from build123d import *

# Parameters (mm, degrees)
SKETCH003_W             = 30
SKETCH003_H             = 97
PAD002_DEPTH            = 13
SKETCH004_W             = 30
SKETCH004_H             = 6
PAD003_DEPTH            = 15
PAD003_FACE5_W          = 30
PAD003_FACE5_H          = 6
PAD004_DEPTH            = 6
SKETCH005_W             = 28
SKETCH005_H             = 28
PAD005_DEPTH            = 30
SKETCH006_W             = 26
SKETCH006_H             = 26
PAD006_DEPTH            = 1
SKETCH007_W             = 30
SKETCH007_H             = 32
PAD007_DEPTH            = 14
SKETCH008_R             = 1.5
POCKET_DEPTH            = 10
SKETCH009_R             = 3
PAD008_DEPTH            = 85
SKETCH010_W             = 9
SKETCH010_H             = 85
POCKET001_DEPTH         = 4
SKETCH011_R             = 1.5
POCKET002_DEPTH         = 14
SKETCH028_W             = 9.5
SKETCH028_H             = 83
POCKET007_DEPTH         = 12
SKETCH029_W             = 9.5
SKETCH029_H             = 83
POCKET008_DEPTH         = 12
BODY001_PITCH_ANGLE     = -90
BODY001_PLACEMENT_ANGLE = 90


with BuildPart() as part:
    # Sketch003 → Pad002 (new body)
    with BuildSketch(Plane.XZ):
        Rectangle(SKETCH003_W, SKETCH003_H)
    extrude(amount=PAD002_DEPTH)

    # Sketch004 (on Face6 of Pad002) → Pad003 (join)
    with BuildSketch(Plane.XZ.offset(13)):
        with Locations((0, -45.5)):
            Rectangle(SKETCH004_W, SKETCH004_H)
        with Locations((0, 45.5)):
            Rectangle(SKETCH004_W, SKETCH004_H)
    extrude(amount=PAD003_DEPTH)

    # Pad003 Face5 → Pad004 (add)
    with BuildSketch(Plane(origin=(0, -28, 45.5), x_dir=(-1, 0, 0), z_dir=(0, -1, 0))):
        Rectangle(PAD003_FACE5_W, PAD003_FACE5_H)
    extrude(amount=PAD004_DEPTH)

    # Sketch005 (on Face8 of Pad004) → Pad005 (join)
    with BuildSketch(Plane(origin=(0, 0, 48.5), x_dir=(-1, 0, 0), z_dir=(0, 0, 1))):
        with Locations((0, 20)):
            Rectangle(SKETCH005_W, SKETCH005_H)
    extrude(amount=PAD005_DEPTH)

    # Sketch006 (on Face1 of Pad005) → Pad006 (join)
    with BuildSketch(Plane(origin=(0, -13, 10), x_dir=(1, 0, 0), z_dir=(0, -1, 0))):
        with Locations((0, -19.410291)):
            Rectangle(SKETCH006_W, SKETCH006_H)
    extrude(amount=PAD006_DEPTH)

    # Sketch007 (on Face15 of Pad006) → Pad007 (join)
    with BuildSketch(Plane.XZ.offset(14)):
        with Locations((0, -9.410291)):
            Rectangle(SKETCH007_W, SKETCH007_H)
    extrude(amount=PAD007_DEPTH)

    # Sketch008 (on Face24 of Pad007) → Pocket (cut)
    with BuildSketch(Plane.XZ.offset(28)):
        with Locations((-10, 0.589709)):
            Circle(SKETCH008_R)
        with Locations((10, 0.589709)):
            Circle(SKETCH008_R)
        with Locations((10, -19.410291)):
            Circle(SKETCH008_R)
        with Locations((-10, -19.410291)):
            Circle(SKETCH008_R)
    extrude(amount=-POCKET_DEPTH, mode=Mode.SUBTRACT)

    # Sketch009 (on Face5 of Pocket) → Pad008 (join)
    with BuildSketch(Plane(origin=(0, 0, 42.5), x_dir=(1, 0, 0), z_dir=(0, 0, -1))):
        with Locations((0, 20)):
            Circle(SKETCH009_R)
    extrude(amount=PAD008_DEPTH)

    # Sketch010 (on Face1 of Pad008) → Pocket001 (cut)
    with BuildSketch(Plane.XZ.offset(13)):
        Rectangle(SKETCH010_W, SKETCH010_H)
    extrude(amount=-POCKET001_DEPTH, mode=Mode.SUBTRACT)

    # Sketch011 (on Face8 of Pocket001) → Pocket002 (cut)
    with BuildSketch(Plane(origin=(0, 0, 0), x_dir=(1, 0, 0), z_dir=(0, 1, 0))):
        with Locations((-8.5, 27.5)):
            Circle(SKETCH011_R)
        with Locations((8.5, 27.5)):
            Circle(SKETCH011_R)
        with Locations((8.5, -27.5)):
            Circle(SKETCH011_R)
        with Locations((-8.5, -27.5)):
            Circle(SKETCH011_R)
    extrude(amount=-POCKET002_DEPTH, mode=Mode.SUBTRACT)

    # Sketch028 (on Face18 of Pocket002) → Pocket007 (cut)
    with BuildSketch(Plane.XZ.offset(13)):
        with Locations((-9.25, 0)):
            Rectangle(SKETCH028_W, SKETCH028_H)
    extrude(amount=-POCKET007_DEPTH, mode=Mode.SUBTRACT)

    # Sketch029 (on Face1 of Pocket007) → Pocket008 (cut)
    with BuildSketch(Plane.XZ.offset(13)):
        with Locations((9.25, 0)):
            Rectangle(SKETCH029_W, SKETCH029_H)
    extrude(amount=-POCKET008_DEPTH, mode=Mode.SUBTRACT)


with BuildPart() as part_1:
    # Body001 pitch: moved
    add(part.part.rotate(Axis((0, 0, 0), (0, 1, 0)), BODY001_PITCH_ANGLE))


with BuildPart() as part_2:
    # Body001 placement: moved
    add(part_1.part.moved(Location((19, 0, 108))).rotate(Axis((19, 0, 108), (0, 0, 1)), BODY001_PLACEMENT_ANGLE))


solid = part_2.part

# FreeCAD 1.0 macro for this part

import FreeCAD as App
import Part
import Sketcher
Q = App.Units.Quantity

doc = App.newDocument("Part")
params = doc.addObject("Spreadsheet::Sheet", "Params")
for row, (alias, value) in enumerate([
    ("sketch1_width", "30 mm"),
    ("sketch1_height", "97 mm"),
    ("pad1_length", "13 mm"),
    ("sketch2_width", "30 mm"),
    ("sketch2_height", "6 mm"),
    ("pad2_length", "15 mm"),
    ("sketch3_width", "30 mm"),
    ("sketch3_height", "6 mm"),
    ("pad3_length", "6 mm"),
    ("sketch4_width", "28 mm"),
    ("pad4_length", "30 mm"),
    ("sketch5_width", "26 mm"),
    ("pad5_length", "1 mm"),
    ("sketch6_width", "30 mm"),
    ("sketch6_height", "32 mm"),
    ("pad6_length", "14 mm"),
    ("sketch7_diameter", "3 mm"),
    ("pocket1_length", "10 mm"),
    ("sketch8_diameter", "6 mm"),
    ("pad7_length", "85 mm"),
    ("sketch9_width", "9 mm"),
    ("sketch9_height", "85 mm"),
    ("pocket2_length", "4 mm"),
    ("sketch10_diameter", "3 mm"),
    ("pocket3_length", "14 mm"),
    ("sketch11_height", "83 mm"),
    ("sketch11_width", "9.5 mm"),
    ("pocket4_length", "12 mm"),
    ("sketch12_height", "83 mm"),
    ("sketch12_width", "9.5 mm"),
    ("pocket5_length", "12 mm"),
], start=1):
    params.set(f"A{row}", alias)
    params.set(f"B{row}", "=" + value)
    params.setAlias(f"B{row}", alias)

body = doc.addObject("PartDesign::Body", "Body")

# Sketch on XZ plane
sketch1 = body.newObject("Sketcher::SketchObject", "Sketch")
sketch1.AttachmentSupport = (doc.getObject("XZ_Plane"), [""])
sketch1.MapMode = "FlatFace"
sketch1.addGeometry([
    Part.LineSegment(App.Vector(-15, 48, 0), App.Vector(-15, -48, 0)),
    Part.LineSegment(App.Vector(-15, -48, 0), App.Vector(15, -48, 0)),
    Part.LineSegment(App.Vector(15, -48, 0), App.Vector(15, 48, 0)),
    Part.LineSegment(App.Vector(15, 48, 0), App.Vector(-15, 48, 0)),
], False)
sketch1.addConstraint([
    Sketcher.Constraint("Coincident", 0, 2, 1, 1),
    Sketcher.Constraint("Coincident", 1, 2, 2, 1),
    Sketcher.Constraint("Coincident", 2, 2, 3, 1),
    Sketcher.Constraint("Coincident", 3, 2, 0, 1),
    Sketcher.Constraint("Vertical", 0),
    Sketcher.Constraint("Horizontal", 1),
    Sketcher.Constraint("Vertical", 2),
    Sketcher.Constraint("Horizontal", 3),
    Sketcher.Constraint("Symmetric", 0, 2, 2, 2, -1, 1),
    Sketcher.Constraint("DistanceX", 1, 1, 1, 2, Q("30 mm")),
    Sketcher.Constraint("DistanceY", 0, 2, 0, 1, Q("97 mm")),
])
sketch1.setExpression("Constraints[9]", "Params.sketch1_width")
sketch1.setExpression("Constraints[10]", "Params.sketch1_height")
pad1 = body.newObject("PartDesign::Pad", "Pad")
pad1.Profile = sketch1
pad1.setExpression("Length", "Params.pad1_length")

# Sketch on XZ plane
sketch2 = body.newObject("Sketcher::SketchObject", "Sketch001")
sketch2.AttachmentSupport = (doc.getObject("XZ_Plane"), [""])
sketch2.MapMode = "FlatFace"
sketch2.AttachmentOffset = App.Placement(App.Vector(0, 0, 13), App.Rotation())
sketch2.addGeometry([
    Part.LineSegment(App.Vector(-15, -42, 0), App.Vector(-15, -48, 0)),  # 0
    Part.LineSegment(App.Vector(-15, -48, 0), App.Vector(15, -48, 0)),  # 1
    Part.LineSegment(App.Vector(15, -48, 0), App.Vector(15, -42, 0)),  # 2
    Part.LineSegment(App.Vector(15, -42, 0), App.Vector(-15, -42, 0)),  # 3
    Part.LineSegment(App.Vector(-15, 48, 0), App.Vector(-15, 42, 0)),  # 4
    Part.LineSegment(App.Vector(-15, 42, 0), App.Vector(15, 42, 0)),  # 5
    Part.LineSegment(App.Vector(15, 42, 0), App.Vector(15, 48, 0)),  # 6
    Part.LineSegment(App.Vector(15, 48, 0), App.Vector(-15, 48, 0)),  # 7
], False)
sketch2.addConstraint([
    Sketcher.Constraint("Coincident", 0, 2, 1, 1),
    Sketcher.Constraint("Coincident", 1, 2, 2, 1),
    Sketcher.Constraint("Coincident", 2, 2, 3, 1),
    Sketcher.Constraint("Coincident", 3, 2, 0, 1),
    Sketcher.Constraint("Coincident", 4, 2, 5, 1),
    Sketcher.Constraint("Coincident", 5, 2, 6, 1),
    Sketcher.Constraint("Coincident", 6, 2, 7, 1),
    Sketcher.Constraint("Coincident", 7, 2, 4, 1),
    Sketcher.Constraint("Vertical", 0),
    Sketcher.Constraint("Horizontal", 1),
    Sketcher.Constraint("Vertical", 2),
    Sketcher.Constraint("Horizontal", 3),
    Sketcher.Constraint("Vertical", 4),
    Sketcher.Constraint("Horizontal", 5),
    Sketcher.Constraint("Vertical", 6),
    Sketcher.Constraint("Horizontal", 7),
    Sketcher.Constraint("Symmetric", 2, 2, 4, 2, -1, 1),
    Sketcher.Constraint("Symmetric", 0, 2, 6, 2, -1, 1),
    Sketcher.Constraint("Vertical", 3, 2, 4, 2),
    Sketcher.Constraint("DistanceX", 1, 1, 1, 2, Q("30 mm")),
    Sketcher.Constraint("DistanceY", 0, 2, 0, 1, Q("6 mm")),
    Sketcher.Constraint("DistanceY", 3, 2, 4, 2, Q("85 mm")),
])
sketch2.setExpression("Constraints[19]", "Params.sketch2_width")
sketch2.setExpression("Constraints[20]", "Params.sketch2_height")
pad2 = body.newObject("PartDesign::Pad", "Pad001")
pad2.Profile = sketch2
pad2.setExpression("Length", "Params.pad2_length")

# Sketch on XZ plane
sketch3 = body.newObject("Sketcher::SketchObject", "Sketch002")
sketch3.AttachmentSupport = (doc.getObject("XZ_Plane"), [""])
sketch3.MapMode = "FlatFace"
sketch3.AttachmentOffset = App.Placement(App.Vector(0, 0, 28), App.Rotation())
sketch3.addGeometry([
    Part.LineSegment(App.Vector(15, 42, 0), App.Vector(15, 48, 0)),
    Part.LineSegment(App.Vector(15, 48, 0), App.Vector(-15, 48, 0)),
    Part.LineSegment(App.Vector(-15, 48, 0), App.Vector(-15, 42, 0)),
    Part.LineSegment(App.Vector(-15, 42, 0), App.Vector(15, 42, 0)),
], False)
sketch3.addConstraint([
    Sketcher.Constraint("Coincident", 0, 2, 1, 1),
    Sketcher.Constraint("Coincident", 1, 2, 2, 1),
    Sketcher.Constraint("Coincident", 2, 2, 3, 1),
    Sketcher.Constraint("Coincident", 3, 2, 0, 1),
    Sketcher.Constraint("Vertical", 0),
    Sketcher.Constraint("Horizontal", 1),
    Sketcher.Constraint("Vertical", 2),
    Sketcher.Constraint("Horizontal", 3),
    Sketcher.Constraint("DistanceX", 1, 2, 1, 1, Q("30 mm")),
    Sketcher.Constraint("DistanceY", 0, 1, 0, 2, Q("6 mm")),
    Sketcher.Constraint("DistanceX", -1, 1, 0, 2, Q("15 mm")),
    Sketcher.Constraint("DistanceY", -1, 1, 0, 2, Q("48.5 mm")),
])
sketch3.setExpression("Constraints[8]", "Params.sketch3_width")
sketch3.setExpression("Constraints[9]", "Params.sketch3_height")
pad3 = body.newObject("PartDesign::Pad", "Pad002")
pad3.Profile = sketch3
pad3.setExpression("Length", "Params.pad3_length")

# Sketch on XY plane
sketch4 = body.newObject("Sketcher::SketchObject", "Sketch003")
sketch4.AttachmentSupport = (doc.getObject("XY_Plane"), [""])
sketch4.MapMode = "FlatFace"
sketch4.AttachmentOffset = App.Placement(App.Vector(0, 0, 48.5), App.Rotation())
sketch4.addGeometry([
    Part.LineSegment(App.Vector(14, -34, 0), App.Vector(14, -6, 0)),
    Part.LineSegment(App.Vector(14, -6, 0), App.Vector(-14, -6, 0)),
    Part.LineSegment(App.Vector(-14, -6, 0), App.Vector(-14, -34, 0)),
    Part.LineSegment(App.Vector(-14, -34, 0), App.Vector(14, -34, 0)),
], False)
sketch4.addConstraint([
    Sketcher.Constraint("Coincident", 0, 2, 1, 1),
    Sketcher.Constraint("Coincident", 1, 2, 2, 1),
    Sketcher.Constraint("Coincident", 2, 2, 3, 1),
    Sketcher.Constraint("Coincident", 3, 2, 0, 1),
    Sketcher.Constraint("Vertical", 0),
    Sketcher.Constraint("Horizontal", 1),
    Sketcher.Constraint("Vertical", 2),
    Sketcher.Constraint("Horizontal", 3),
    Sketcher.Constraint("Equal", 3, 0),
    Sketcher.Constraint("DistanceX", 1, 2, 1, 1, Q("28 mm")),
    Sketcher.Constraint("DistanceX", -1, 1, 0, 2, Q("14 mm")),
    Sketcher.Constraint("DistanceY", 0, 2, -1, 1, Q("6 mm")),
])
sketch4.setExpression("Constraints[9]", "Params.sketch4_width")
pad4 = body.newObject("PartDesign::Pad", "Pad003")
pad4.Profile = sketch4
pad4.setExpression("Length", "Params.pad4_length")

# Sketch on XZ plane
sketch5 = body.newObject("Sketcher::SketchObject", "Sketch004")
sketch5.AttachmentSupport = (doc.getObject("XZ_Plane"), [""])
sketch5.MapMode = "FlatFace"
sketch5.AttachmentOffset = App.Placement(App.Vector(0, 0, 13), App.Rotation())
sketch5.addGeometry([
    Part.LineSegment(App.Vector(-13, 4, 0), App.Vector(-13, -22, 0)),
    Part.LineSegment(App.Vector(-13, -22, 0), App.Vector(13, -22, 0)),
    Part.LineSegment(App.Vector(13, -22, 0), App.Vector(13, 4, 0)),
    Part.LineSegment(App.Vector(13, 4, 0), App.Vector(-13, 4, 0)),
], False)
sketch5.addConstraint([
    Sketcher.Constraint("Coincident", 0, 2, 1, 1),
    Sketcher.Constraint("Coincident", 1, 2, 2, 1),
    Sketcher.Constraint("Coincident", 2, 2, 3, 1),
    Sketcher.Constraint("Coincident", 3, 2, 0, 1),
    Sketcher.Constraint("Vertical", 0),
    Sketcher.Constraint("Horizontal", 1),
    Sketcher.Constraint("Vertical", 2),
    Sketcher.Constraint("Horizontal", 3),
    Sketcher.Constraint("Equal", 3, 0),
    Sketcher.Constraint("DistanceX", 1, 1, 1, 2, Q("26 mm")),
    Sketcher.Constraint("DistanceX", 0, 2, -1, 1, Q("13 mm")),
    Sketcher.Constraint("DistanceY", 0, 2, -1, 1, Q("22.410291 mm")),
])
sketch5.setExpression("Constraints[9]", "Params.sketch5_width")
pad5 = body.newObject("PartDesign::Pad", "Pad004")
pad5.Profile = sketch5
pad5.setExpression("Length", "Params.pad5_length")

# Sketch on XZ plane
sketch6 = body.newObject("Sketcher::SketchObject", "Sketch005")
sketch6.AttachmentSupport = (doc.getObject("XZ_Plane"), [""])
sketch6.MapMode = "FlatFace"
sketch6.AttachmentOffset = App.Placement(App.Vector(0, 0, 14), App.Rotation())
sketch6.addGeometry([
    Part.LineSegment(App.Vector(-15, 7, 0), App.Vector(-15, -25, 0)),
    Part.LineSegment(App.Vector(-15, -25, 0), App.Vector(15, -25, 0)),
    Part.LineSegment(App.Vector(15, -25, 0), App.Vector(15, 7, 0)),
    Part.LineSegment(App.Vector(15, 7, 0), App.Vector(-15, 7, 0)),
], False)
sketch6.addConstraint([
    Sketcher.Constraint("Coincident", 0, 2, 1, 1),
    Sketcher.Constraint("Coincident", 1, 2, 2, 1),
    Sketcher.Constraint("Coincident", 2, 2, 3, 1),
    Sketcher.Constraint("Coincident", 3, 2, 0, 1),
    Sketcher.Constraint("Vertical", 0),
    Sketcher.Constraint("Horizontal", 1),
    Sketcher.Constraint("Vertical", 2),
    Sketcher.Constraint("Horizontal", 3),
    Sketcher.Constraint("DistanceX", 1, 1, 1, 2, Q("30 mm")),
    Sketcher.Constraint("DistanceY", 0, 2, 0, 1, Q("32 mm")),
    Sketcher.Constraint("DistanceX", 0, 2, -1, 1, Q("15 mm")),
    Sketcher.Constraint("DistanceY", 0, 2, -1, 1, Q("25.410291 mm")),
])
sketch6.setExpression("Constraints[8]", "Params.sketch6_width")
sketch6.setExpression("Constraints[9]", "Params.sketch6_height")
pad6 = body.newObject("PartDesign::Pad", "Pad005")
pad6.Profile = sketch6
pad6.setExpression("Length", "Params.pad6_length")

# Sketch on XZ plane
sketch7 = body.newObject("Sketcher::SketchObject", "Sketch006")
sketch7.AttachmentSupport = (doc.getObject("XZ_Plane"), [""])
sketch7.MapMode = "FlatFace"
sketch7.AttachmentOffset = App.Placement(App.Vector(0, 0, 28), App.Rotation())
sketch7.addGeometry([
    Part.Circle(App.Vector(-10, 0.6, 0), App.Vector(0, 0, 1), 1.5),
    Part.Circle(App.Vector(10, 0.6, 0), App.Vector(0, 0, 1), 1.5),
    Part.Circle(App.Vector(10, -19.4, 0), App.Vector(0, 0, 1), 1.5),
    Part.Circle(App.Vector(-10, -19.4, 0), App.Vector(0, 0, 1), 1.5),
], False)
sketch7.addConstraint([
    Sketcher.Constraint("Equal", 0, 1),
    Sketcher.Constraint("Equal", 1, 2),
    Sketcher.Constraint("Equal", 2, 3),
    Sketcher.Constraint("Symmetric", 0, 3, 1, 3, -2),
    Sketcher.Constraint("Symmetric", 2, 3, 3, 3, -2),
    Sketcher.Constraint("Vertical", 1, 3, 2, 3),
    Sketcher.Constraint("Diameter", 0, Q("3 mm")),
    Sketcher.Constraint("DistanceX", 0, 3, -1, 1, Q("10 mm")),
    Sketcher.Constraint("DistanceY", 2, 3, 1, 3, Q("20 mm")),
    Sketcher.Constraint("DistanceY", -1, 1, 0, 3, Q("0.589709 mm")),
])
sketch7.setExpression("Constraints[6]", "Params.sketch7_diameter")
pocket1 = body.newObject("PartDesign::Pocket", "Pocket")
pocket1.Profile = sketch7
pocket1.setExpression("Length", "Params.pocket1_length")

# Sketch on XY plane
sketch8 = body.newObject("Sketcher::SketchObject", "Sketch007")
sketch8.AttachmentSupport = (doc.getObject("XY_Plane"), [""])
sketch8.MapMode = "FlatFace"
sketch8.AttachmentOffset = App.Placement(App.Vector(0, 0, 42.5), App.Rotation())
sketch8.addGeometry(Part.Circle(App.Vector(0, -20, 0), App.Vector(0, 0, 1), 3), False)
sketch8.addConstraint([
    Sketcher.Constraint("PointOnObject", 0, 3, -2),
    Sketcher.Constraint("Diameter", 0, Q("6 mm")),
    Sketcher.Constraint("DistanceY", 0, 3, -1, 1, Q("20 mm")),
])
sketch8.setExpression("Constraints[1]", "Params.sketch8_diameter")
pad7 = body.newObject("PartDesign::Pad", "Pad006")
pad7.Profile = sketch8
pad7.setExpression("Length", "Params.pad7_length")
pad7.Reversed = True

# Sketch on XZ plane
sketch9 = body.newObject("Sketcher::SketchObject", "Sketch008")
sketch9.AttachmentSupport = (doc.getObject("XZ_Plane"), [""])
sketch9.MapMode = "FlatFace"
sketch9.AttachmentOffset = App.Placement(App.Vector(0, 0, 13), App.Rotation())
sketch9.addGeometry([
    Part.LineSegment(App.Vector(-4, 42, 0), App.Vector(-4, -42, 0)),
    Part.LineSegment(App.Vector(-4, -42, 0), App.Vector(4, -42, 0)),
    Part.LineSegment(App.Vector(4, -42, 0), App.Vector(4, 42, 0)),
    Part.LineSegment(App.Vector(4, 42, 0), App.Vector(-4, 42, 0)),
], False)
sketch9.addConstraint([
    Sketcher.Constraint("Coincident", 0, 2, 1, 1),
    Sketcher.Constraint("Coincident", 1, 2, 2, 1),
    Sketcher.Constraint("Coincident", 2, 2, 3, 1),
    Sketcher.Constraint("Coincident", 3, 2, 0, 1),
    Sketcher.Constraint("Vertical", 0),
    Sketcher.Constraint("Horizontal", 1),
    Sketcher.Constraint("Vertical", 2),
    Sketcher.Constraint("Horizontal", 3),
    Sketcher.Constraint("Symmetric", 0, 2, 2, 2, -1, 1),
    Sketcher.Constraint("DistanceX", 1, 1, 1, 2, Q("9 mm")),
    Sketcher.Constraint("DistanceY", 0, 2, 0, 1, Q("85 mm")),
])
sketch9.setExpression("Constraints[9]", "Params.sketch9_width")
sketch9.setExpression("Constraints[10]", "Params.sketch9_height")
pocket2 = body.newObject("PartDesign::Pocket", "Pocket001")
pocket2.Profile = sketch9
pocket2.setExpression("Length", "Params.pocket2_length")

# Sketch on XZ plane
sketch10 = body.newObject("Sketcher::SketchObject", "Sketch009")
sketch10.AttachmentSupport = (doc.getObject("XZ_Plane"), [""])
sketch10.MapMode = "FlatFace"
sketch10.addGeometry([
    Part.Circle(App.Vector(-8.5, -27.5, 0), App.Vector(0, 0, 1), 1.5),
    Part.Circle(App.Vector(8.5, -27.5, 0), App.Vector(0, 0, 1), 1.5),
    Part.Circle(App.Vector(8.5, 27.5, 0), App.Vector(0, 0, 1), 1.5),
    Part.Circle(App.Vector(-8.5, 27.5, 0), App.Vector(0, 0, 1), 1.5),
], False)
sketch10.addConstraint([
    Sketcher.Constraint("Equal", 0, 1),
    Sketcher.Constraint("Equal", 1, 2),
    Sketcher.Constraint("Equal", 2, 3),
    Sketcher.Constraint("Symmetric", 0, 3, 2, 3, -1, 1),
    Sketcher.Constraint("Symmetric", 1, 3, 3, 3, -1, 1),
    Sketcher.Constraint("Symmetric", 0, 3, 1, 3, -2),
    Sketcher.Constraint("Diameter", 0, Q("3 mm")),
    Sketcher.Constraint("DistanceX", 0, 3, 1, 3, Q("17 mm")),
    Sketcher.Constraint("DistanceY", 1, 3, 2, 3, Q("55 mm")),
])
sketch10.setExpression("Constraints[6]", "Params.sketch10_diameter")
pocket3 = body.newObject("PartDesign::Pocket", "Pocket002")
pocket3.Profile = sketch10
pocket3.setExpression("Length", "Params.pocket3_length")
pocket3.Reversed = True

# Sketch on XZ plane
sketch11 = body.newObject("Sketcher::SketchObject", "Sketch010")
sketch11.AttachmentSupport = (doc.getObject("XZ_Plane"), [""])
sketch11.MapMode = "FlatFace"
sketch11.AttachmentOffset = App.Placement(App.Vector(0, 0, 13), App.Rotation())
sketch11.addGeometry([
    Part.LineSegment(App.Vector(-14, 42, 0), App.Vector(-14, -42, 0)),
    Part.LineSegment(App.Vector(-14, -42, 0), App.Vector(-4, -42, 0)),
    Part.LineSegment(App.Vector(-4, -42, 0), App.Vector(-4, 42, 0)),
    Part.LineSegment(App.Vector(-4, 42, 0), App.Vector(-14, 42, 0)),
], False)
sketch11.addConstraint([
    Sketcher.Constraint("Coincident", 0, 2, 1, 1),
    Sketcher.Constraint("Coincident", 1, 2, 2, 1),
    Sketcher.Constraint("Coincident", 2, 2, 3, 1),
    Sketcher.Constraint("Coincident", 3, 2, 0, 1),
    Sketcher.Constraint("Vertical", 0),
    Sketcher.Constraint("Horizontal", 1),
    Sketcher.Constraint("Vertical", 2),
    Sketcher.Constraint("Horizontal", 3),
    Sketcher.Constraint("DistanceY", 0, 2, 0, 1, Q("83 mm")),
    Sketcher.Constraint("DistanceX", 1, 1, 1, 2, Q("9.5 mm")),
    Sketcher.Constraint("DistanceX", 0, 2, -1, 1, Q("14 mm")),
    Sketcher.Constraint("DistanceY", 0, 2, -1, 1, Q("41.5 mm")),
])
sketch11.setExpression("Constraints[8]", "Params.sketch11_height")
sketch11.setExpression("Constraints[9]", "Params.sketch11_width")
pocket4 = body.newObject("PartDesign::Pocket", "Pocket003")
pocket4.Profile = sketch11
pocket4.setExpression("Length", "Params.pocket4_length")

# Sketch on XZ plane
sketch12 = body.newObject("Sketcher::SketchObject", "Sketch011")
sketch12.AttachmentSupport = (doc.getObject("XZ_Plane"), [""])
sketch12.MapMode = "FlatFace"
sketch12.AttachmentOffset = App.Placement(App.Vector(0, 0, 13), App.Rotation())
sketch12.addGeometry([
    Part.LineSegment(App.Vector(4, 42, 0), App.Vector(4, -42, 0)),
    Part.LineSegment(App.Vector(4, -42, 0), App.Vector(14, -42, 0)),
    Part.LineSegment(App.Vector(14, -42, 0), App.Vector(14, 42, 0)),
    Part.LineSegment(App.Vector(14, 42, 0), App.Vector(4, 42, 0)),
], False)
sketch12.addConstraint([
    Sketcher.Constraint("Coincident", 0, 2, 1, 1),
    Sketcher.Constraint("Coincident", 1, 2, 2, 1),
    Sketcher.Constraint("Coincident", 2, 2, 3, 1),
    Sketcher.Constraint("Coincident", 3, 2, 0, 1),
    Sketcher.Constraint("Vertical", 0),
    Sketcher.Constraint("Horizontal", 1),
    Sketcher.Constraint("Vertical", 2),
    Sketcher.Constraint("Horizontal", 3),
    Sketcher.Constraint("DistanceY", 0, 2, 0, 1, Q("83 mm")),
    Sketcher.Constraint("DistanceX", 1, 1, 1, 2, Q("9.5 mm")),
    Sketcher.Constraint("DistanceX", -1, 1, 1, 2, Q("14 mm")),
    Sketcher.Constraint("DistanceY", 0, 2, -1, 1, Q("41.5 mm")),
])
sketch12.setExpression("Constraints[8]", "Params.sketch12_height")
sketch12.setExpression("Constraints[9]", "Params.sketch12_width")
pocket5 = body.newObject("PartDesign::Pocket", "Pocket004")
pocket5.Profile = sketch12
pocket5.setExpression("Length", "Params.pocket5_length")
body2 = doc.addObject("PartDesign::Body", "Body001")
doc.recompute()

body.Placement = App.Placement(App.Vector(0, 0, 0), App.Rotation(App.Vector(0, 1, 0), 270))
boolean = body2.newObject("PartDesign::Boolean", "Boolean")
boolean.Type = "Fuse"
boolean.addObjects([body])
body3 = doc.addObject("PartDesign::Body", "Body002")
doc.recompute()

body2.Placement = App.Placement(App.Vector(19, 0, 108), App.Rotation(App.Vector(0, 0, 1), 90))
boolean2 = body3.newObject("PartDesign::Boolean", "Boolean001")
boolean2.Type = "Fuse"
boolean2.addObjects([body2])

doc.recompute()
